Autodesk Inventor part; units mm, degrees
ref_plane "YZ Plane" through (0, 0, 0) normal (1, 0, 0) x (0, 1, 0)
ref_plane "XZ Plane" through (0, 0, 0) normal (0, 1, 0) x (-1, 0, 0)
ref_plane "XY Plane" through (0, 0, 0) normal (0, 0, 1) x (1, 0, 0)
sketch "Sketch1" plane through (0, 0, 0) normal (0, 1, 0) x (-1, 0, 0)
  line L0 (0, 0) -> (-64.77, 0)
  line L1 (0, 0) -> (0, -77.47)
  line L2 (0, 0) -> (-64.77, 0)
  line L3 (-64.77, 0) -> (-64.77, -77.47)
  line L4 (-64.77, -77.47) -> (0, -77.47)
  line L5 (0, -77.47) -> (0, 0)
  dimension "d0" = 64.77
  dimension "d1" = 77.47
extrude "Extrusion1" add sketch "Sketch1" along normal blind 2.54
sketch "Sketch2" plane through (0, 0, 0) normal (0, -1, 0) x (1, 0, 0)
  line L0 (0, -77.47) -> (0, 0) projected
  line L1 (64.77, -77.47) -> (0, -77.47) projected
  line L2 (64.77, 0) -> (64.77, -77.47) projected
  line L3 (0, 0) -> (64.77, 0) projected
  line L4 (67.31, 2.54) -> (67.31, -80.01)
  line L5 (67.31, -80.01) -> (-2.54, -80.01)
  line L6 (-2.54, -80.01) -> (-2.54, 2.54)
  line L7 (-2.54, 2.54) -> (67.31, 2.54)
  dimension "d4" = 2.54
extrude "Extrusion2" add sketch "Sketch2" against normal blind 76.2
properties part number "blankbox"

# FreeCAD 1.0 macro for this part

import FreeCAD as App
import Part
import Sketcher

V = App.Vector
Q = App.Units.Quantity

doc = App.newDocument("Part")
body = doc.addObject("PartDesign::Body", "Body")

sketch1 = body.newObject("Sketcher::SketchObject", "Sketch")
sketch1.AttachmentSupport = (doc.getObject("XZ_Plane"), [""])
sketch1.MapMode = "FlatFace"
sketch1.addGeometry([
    Part.LineSegment(V(0, -77, 0), V(0, 0, 0)),
    Part.LineSegment(V(0, 0, 0), V(65, 0, 0)),
    Part.LineSegment(V(65, 0, 0), V(65, -77, 0)),
    Part.LineSegment(V(65, -77, 0), V(0, -77, 0)),
], False)
sketch1.addConstraint([
    Sketcher.Constraint("Coincident", 0, 2, 1, 1),
    Sketcher.Constraint("Coincident", 1, 2, 2, 1),
    Sketcher.Constraint("Coincident", 2, 2, 3, 1),
    Sketcher.Constraint("Coincident", 3, 2, 0, 1),
    Sketcher.Constraint("Vertical", 0),
    Sketcher.Constraint("Horizontal", 1),
    Sketcher.Constraint("Vertical", 2),
    Sketcher.Constraint("Horizontal", 3),
    Sketcher.Constraint("Coincident", 0, 2, -1, 1),
    Sketcher.Constraint("DistanceX", 1, 1, 1, 2, Q("2.55 in")),
    Sketcher.Constraint("DistanceY", 0, 1, 0, 2, Q("3.05 in")),
])
pad1 = body.newObject("PartDesign::Pad", "Pad")
pad1.Profile = sketch1
pad1.Length = Q("0.1 in")
pad1.Reversed = True

sketch2 = body.newObject("Sketcher::SketchObject", "Sketch001")
sketch2.AttachmentSupport = (doc.getObject("XZ_Plane"), [""])
sketch2.MapMode = "FlatFace"
sketch2.addGeometry([
    Part.LineSegment(V(67, -80, 0), V(67, 3, 0)),
    Part.LineSegment(V(67, 3, 0), V(-3, 3, 0)),
    Part.LineSegment(V(-3, 3, 0), V(-3, -80, 0)),
    Part.LineSegment(V(-3, -80, 0), V(67, -80, 0)),
    Part.LineSegment(V(65, -77, 0), V(0, -77, 0)),
    Part.LineSegment(V(0, -77, 0), V(0, 0, 0)),
    Part.LineSegment(V(0, 0, 0), V(65, 0, 0)),
    Part.LineSegment(V(65, 0, 0), V(65, -77, 0)),
], False)
sketch2.addConstraint([
    Sketcher.Constraint("Coincident", 0, 2, 1, 1),
    Sketcher.Constraint("Coincident", 1, 2, 2, 1),
    Sketcher.Constraint("Coincident", 2, 2, 3, 1),
    Sketcher.Constraint("Coincident", 3, 2, 0, 1),
    Sketcher.Constraint("Coincident", 4, 2, 5, 1),
    Sketcher.Constraint("Coincident", 5, 2, 6, 1),
    Sketcher.Constraint("Coincident", 6, 2, 7, 1),
    Sketcher.Constraint("Coincident", 7, 2, 4, 1),
    Sketcher.Constraint("Vertical", 0),
    Sketcher.Constraint("Horizontal", 1),
    Sketcher.Constraint("Vertical", 2),
    Sketcher.Constraint("Horizontal", 3),
    Sketcher.Constraint("Horizontal", 4),
    Sketcher.Constraint("Vertical", 5),
    Sketcher.Constraint("Horizontal", 6),
    Sketcher.Constraint("Vertical", 7),
    Sketcher.Constraint("Coincident", 5, 2, -1, 1),
    Sketcher.Constraint("DistanceY", -1, 1, 0, 2, Q("0.1 in")),
    Sketcher.Constraint("DistanceX", 1, 2, -1, 1, Q("0.1 in")),
    Sketcher.Constraint("DistanceY", 2, 2, 4, 2, Q("0.1 in")),
    Sketcher.Constraint("DistanceX", 6, 2, 0, 2, Q("0.1 in")),
    Sketcher.Constraint("DistanceX", 1, 2, 1, 1, Q("2.75 in")),
    Sketcher.Constraint("DistanceY", 0, 1, 0, 2, Q("3.25 in")),
])
pad2 = body.newObject("PartDesign::Pad", "Pad001")
pad2.Profile = sketch2
pad2.Length = Q("3 in")
pad2.Reversed = True

doc.recompute()
